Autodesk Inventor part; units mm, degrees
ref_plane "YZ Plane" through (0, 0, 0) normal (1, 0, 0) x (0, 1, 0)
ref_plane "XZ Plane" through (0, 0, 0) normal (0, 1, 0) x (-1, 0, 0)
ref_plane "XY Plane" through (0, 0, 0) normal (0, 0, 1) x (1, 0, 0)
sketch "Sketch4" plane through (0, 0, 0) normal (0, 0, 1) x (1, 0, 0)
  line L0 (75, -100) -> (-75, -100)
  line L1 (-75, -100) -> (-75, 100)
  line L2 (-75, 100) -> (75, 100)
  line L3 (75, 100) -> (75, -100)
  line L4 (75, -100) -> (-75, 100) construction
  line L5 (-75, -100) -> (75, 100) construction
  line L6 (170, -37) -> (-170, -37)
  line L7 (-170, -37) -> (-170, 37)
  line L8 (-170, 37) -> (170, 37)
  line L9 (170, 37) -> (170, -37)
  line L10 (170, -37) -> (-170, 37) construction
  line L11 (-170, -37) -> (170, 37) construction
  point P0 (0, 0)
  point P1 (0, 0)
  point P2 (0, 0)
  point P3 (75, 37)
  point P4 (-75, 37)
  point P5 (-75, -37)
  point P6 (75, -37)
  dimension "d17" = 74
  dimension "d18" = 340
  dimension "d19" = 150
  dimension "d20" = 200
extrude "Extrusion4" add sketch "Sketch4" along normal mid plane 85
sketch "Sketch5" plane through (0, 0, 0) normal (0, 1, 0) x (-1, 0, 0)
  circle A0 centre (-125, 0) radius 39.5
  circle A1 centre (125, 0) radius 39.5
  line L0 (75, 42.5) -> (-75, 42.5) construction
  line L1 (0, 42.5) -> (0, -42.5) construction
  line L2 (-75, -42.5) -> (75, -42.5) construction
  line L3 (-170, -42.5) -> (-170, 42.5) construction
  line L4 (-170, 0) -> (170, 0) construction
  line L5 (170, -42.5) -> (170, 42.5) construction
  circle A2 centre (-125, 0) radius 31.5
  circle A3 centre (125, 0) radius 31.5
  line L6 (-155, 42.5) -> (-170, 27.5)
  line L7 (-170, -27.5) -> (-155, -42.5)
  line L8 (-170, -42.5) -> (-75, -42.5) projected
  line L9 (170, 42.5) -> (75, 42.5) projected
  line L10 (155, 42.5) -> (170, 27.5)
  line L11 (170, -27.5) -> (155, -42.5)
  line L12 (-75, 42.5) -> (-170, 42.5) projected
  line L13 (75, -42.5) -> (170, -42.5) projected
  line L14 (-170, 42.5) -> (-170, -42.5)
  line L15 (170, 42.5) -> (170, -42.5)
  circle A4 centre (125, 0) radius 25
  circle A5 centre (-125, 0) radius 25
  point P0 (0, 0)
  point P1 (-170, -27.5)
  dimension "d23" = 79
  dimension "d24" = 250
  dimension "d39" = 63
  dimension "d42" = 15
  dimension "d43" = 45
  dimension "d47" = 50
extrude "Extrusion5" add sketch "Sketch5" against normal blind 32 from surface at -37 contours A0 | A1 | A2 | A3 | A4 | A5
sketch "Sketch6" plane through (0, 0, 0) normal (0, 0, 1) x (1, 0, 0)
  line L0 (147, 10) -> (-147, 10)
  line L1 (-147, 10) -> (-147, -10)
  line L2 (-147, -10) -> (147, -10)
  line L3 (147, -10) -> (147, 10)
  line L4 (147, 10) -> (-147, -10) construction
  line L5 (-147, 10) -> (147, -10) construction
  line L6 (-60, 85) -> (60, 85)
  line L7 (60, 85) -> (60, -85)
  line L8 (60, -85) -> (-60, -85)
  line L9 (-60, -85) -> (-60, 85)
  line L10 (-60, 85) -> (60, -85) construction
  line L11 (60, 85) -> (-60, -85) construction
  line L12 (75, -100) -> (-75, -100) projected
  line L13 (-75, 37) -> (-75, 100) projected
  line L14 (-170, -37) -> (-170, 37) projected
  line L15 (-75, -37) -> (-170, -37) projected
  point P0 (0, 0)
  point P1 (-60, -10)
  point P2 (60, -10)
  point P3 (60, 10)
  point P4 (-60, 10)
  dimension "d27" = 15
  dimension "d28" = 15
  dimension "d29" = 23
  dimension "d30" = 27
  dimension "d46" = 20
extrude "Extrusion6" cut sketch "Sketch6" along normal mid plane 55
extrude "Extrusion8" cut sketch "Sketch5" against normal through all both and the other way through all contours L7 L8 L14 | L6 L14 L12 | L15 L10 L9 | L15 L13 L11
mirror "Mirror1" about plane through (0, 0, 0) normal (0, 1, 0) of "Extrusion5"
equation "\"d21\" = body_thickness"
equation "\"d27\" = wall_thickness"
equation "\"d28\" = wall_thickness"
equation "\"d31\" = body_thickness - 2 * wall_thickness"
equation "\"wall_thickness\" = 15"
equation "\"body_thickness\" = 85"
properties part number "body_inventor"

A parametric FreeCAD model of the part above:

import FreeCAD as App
import Part
import Sketcher

V = App.Vector
Q = App.Units.Quantity

doc = App.newDocument("Part")
body = doc.addObject("PartDesign::Body", "Body")

# Sketch on XY plane
sketch1 = body.newObject("Sketcher::SketchObject", "Sketch")
sketch1.AttachmentSupport = (doc.getObject("XY_Plane"), [""])
sketch1.MapMode = "FlatFace"
sketch1.addGeometry([
    Part.LineSegment(V(-75, -100, 0), V(75, -100, 0)),  # 0
    Part.LineSegment(V(75, -100, 0), V(75, -37, 0)),  # 1
    Part.LineSegment(V(75, -37, 0), V(170, -37, 0)),  # 2
    Part.LineSegment(V(170, -37, 0), V(170, 37, 0)),  # 3
    Part.LineSegment(V(170, 37, 0), V(75, 37, 0)),  # 4
    Part.LineSegment(V(75, 37, 0), V(75, 100, 0)),  # 5
    Part.LineSegment(V(75, 100, 0), V(-75, 100, 0)),  # 6
    Part.LineSegment(V(-75, 100, 0), V(-75, 37, 0)),  # 7
    Part.LineSegment(V(-75, 37, 0), V(-170, 37, 0)),  # 8
    Part.LineSegment(V(-170, 37, 0), V(-170, -37, 0)),  # 9
    Part.LineSegment(V(-170, -37, 0), V(-75, -37, 0)),  # 10
    Part.LineSegment(V(-75, -37, 0), V(-75, -100, 0)),  # 11
], False)
sketch1.addConstraint([
    Sketcher.Constraint("Coincident", 0, 2, 1, 1),
    Sketcher.Constraint("Coincident", 1, 2, 2, 1),
    Sketcher.Constraint("Coincident", 2, 2, 3, 1),
    Sketcher.Constraint("Coincident", 3, 2, 4, 1),
    Sketcher.Constraint("Coincident", 4, 2, 5, 1),
    Sketcher.Constraint("Coincident", 5, 2, 6, 1),
    Sketcher.Constraint("Coincident", 6, 2, 7, 1),
    Sketcher.Constraint("Coincident", 7, 2, 8, 1),
    Sketcher.Constraint("Coincident", 8, 2, 9, 1),
    Sketcher.Constraint("Coincident", 9, 2, 10, 1),
    Sketcher.Constraint("Coincident", 10, 2, 11, 1),
    Sketcher.Constraint("Coincident", 11, 2, 0, 1),
    Sketcher.Constraint("Horizontal", 0),
    Sketcher.Constraint("Vertical", 1),
    Sketcher.Constraint("Horizontal", 2),
    Sketcher.Constraint("Vertical", 3),
    Sketcher.Constraint("Horizontal", 4),
    Sketcher.Constraint("Vertical", 5),
    Sketcher.Constraint("Horizontal", 6),
    Sketcher.Constraint("Vertical", 7),
    Sketcher.Constraint("Horizontal", 8),
    Sketcher.Constraint("Vertical", 9),
    Sketcher.Constraint("Horizontal", 10),
    Sketcher.Constraint("Vertical", 11),
    Sketcher.Constraint("Symmetric", 0, 2, 6, 2, -1, 1),
    Sketcher.Constraint("Symmetric", 2, 2, 8, 2, -1, 1),
    Sketcher.Constraint("Symmetric", 4, 2, 10, 2, -1, 1),
    Sketcher.Constraint("Symmetric", 4, 2, 7, 2, -2),
    Sketcher.Constraint("DistanceX", 0, 1, 0, 2, Q("150 mm")),
    Sketcher.Constraint("DistanceY", 3, 1, 3, 2, Q("74 mm")),
    Sketcher.Constraint("DistanceY", 0, 2, 5, 2, Q("200 mm")),
    Sketcher.Constraint("DistanceX", 2, 1, 2, 2, Q("95 mm")),
])
pad1 = body.newObject("PartDesign::Pad", "Pad")
pad1.Profile = sketch1
pad1.Length = 85
pad1.Midplane = True

# Sketch on XZ plane
sketch2 = body.newObject("Sketcher::SketchObject", "Sketch001")
sketch2.AttachmentSupport = (doc.getObject("XZ_Plane"), [""])
sketch2.MapMode = "FlatFace"
sketch2.AttachmentOffset = App.Placement(V(0, 0, 37), App.Rotation())
sketch2.addGeometry([
    Part.Circle(V(125, 0, 0), V(0, 0, 1), 40),
    Part.Circle(V(-125, 0, 0), V(0, 0, 1), 40),
], False)
sketch2.addConstraint([
    Sketcher.Constraint("Equal", 0, 1),
    Sketcher.Constraint("Symmetric", 0, 3, 1, 3, -1, 1),
    Sketcher.Constraint("PointOnObject", 0, 3, -1),
    Sketcher.Constraint("Diameter", 0, Q("79 mm")),
    Sketcher.Constraint("DistanceX", 1, 3, 0, 3, Q("250 mm")),
])
pad2 = body.newObject("PartDesign::Pad", "Pad001")
pad2.Profile = sketch2
pad2.Length = 32

# Sketch on XY plane
sketch3 = body.newObject("Sketcher::SketchObject", "Sketch002")
sketch3.AttachmentSupport = (doc.getObject("XY_Plane"), [""])
sketch3.MapMode = "FlatFace"
sketch3.addGeometry([
    Part.LineSegment(V(147, -10, 0), V(147, 10, 0)),  # 0
    Part.LineSegment(V(147, 10, 0), V(60, 10, 0)),  # 1
    Part.LineSegment(V(60, 10, 0), V(60, 85, 0)),  # 2
    Part.LineSegment(V(60, 85, 0), V(-60, 85, 0)),  # 3
    Part.LineSegment(V(-60, 85, 0), V(-60, 10, 0)),  # 4
    Part.LineSegment(V(-60, 10, 0), V(-147, 10, 0)),  # 5
    Part.LineSegment(V(-147, 10, 0), V(-147, -10, 0)),  # 6
    Part.LineSegment(V(-147, -10, 0), V(-60, -10, 0)),  # 7
    Part.LineSegment(V(-60, -10, 0), V(-60, -85, 0)),  # 8
    Part.LineSegment(V(-60, -85, 0), V(60, -85, 0)),  # 9
    Part.LineSegment(V(60, -85, 0), V(60, -10, 0)),  # 10
    Part.LineSegment(V(60, -10, 0), V(147, -10, 0)),  # 11
], False)
sketch3.addConstraint([
    Sketcher.Constraint("Coincident", 0, 2, 1, 1),
    Sketcher.Constraint("Coincident", 1, 2, 2, 1),
    Sketcher.Constraint("Coincident", 2, 2, 3, 1),
    Sketcher.Constraint("Coincident", 3, 2, 4, 1),
    Sketcher.Constraint("Coincident", 4, 2, 5, 1),
    Sketcher.Constraint("Coincident", 5, 2, 6, 1),
    Sketcher.Constraint("Coincident", 6, 2, 7, 1),
    Sketcher.Constraint("Coincident", 7, 2, 8, 1),
    Sketcher.Constraint("Coincident", 8, 2, 9, 1),
    Sketcher.Constraint("Coincident", 9, 2, 10, 1),
    Sketcher.Constraint("Coincident", 10, 2, 11, 1),
    Sketcher.Constraint("Coincident", 11, 2, 0, 1),
    Sketcher.Constraint("Vertical", 0),
    Sketcher.Constraint("Horizontal", 1),
    Sketcher.Constraint("Vertical", 2),
    Sketcher.Constraint("Horizontal", 3),
    Sketcher.Constraint("Vertical", 4),
    Sketcher.Constraint("Horizontal", 5),
    Sketcher.Constraint("Vertical", 6),
    Sketcher.Constraint("Horizontal", 7),
    Sketcher.Constraint("Vertical", 8),
    Sketcher.Constraint("Horizontal", 9),
    Sketcher.Constraint("Vertical", 10),
    Sketcher.Constraint("Horizontal", 11),
    Sketcher.Constraint("Symmetric", 0, 2, 6, 2, -1, 1),
    Sketcher.Constraint("Symmetric", 2, 2, 8, 2, -1, 1),
    Sketcher.Constraint("Symmetric", 4, 2, 10, 2, -1, 1),
    Sketcher.Constraint("Symmetric", 1, 2, 4, 2, -2),
    Sketcher.Constraint("DistanceY", 0, 1, 0, 2, Q("20 mm")),
    Sketcher.Constraint("DistanceX", 1, 2, 1, 1, Q("87 mm")),
    Sketcher.Constraint("DistanceX", 3, 2, 3, 1, Q("120 mm")),
    Sketcher.Constraint("DistanceY", 2, 1, 2, 2, Q("75 mm")),
])
pocket1 = body.newObject("PartDesign::Pocket", "Pocket")
pocket1.Profile = sketch3
pocket1.Length = 55
pocket1.Midplane = True

# Sketch on XZ plane
sketch4 = body.newObject("Sketcher::SketchObject", "Sketch003")
sketch4.AttachmentSupport = (doc.getObject("XZ_Plane"), [""])
sketch4.MapMode = "FlatFace"
sketch4.addGeometry([
    Part.LineSegment(V(155, -42, 0), V(170, -28, 0)),  # 0
    Part.LineSegment(V(170, -28, 0), V(170, -42, 0)),  # 1
    Part.LineSegment(V(170, -42, 0), V(155, -42, 0)),  # 2
    Part.LineSegment(V(170, 28, 0), V(155, 42, 0)),  # 3
    Part.LineSegment(V(155, 42, 0), V(170, 42, 0)),  # 4
    Part.LineSegment(V(170, 42, 0), V(170, 28, 0)),  # 5
    Part.LineSegment(V(-170, 28, 0), V(-170, 42, 0)),  # 6
    Part.LineSegment(V(-170, 42, 0), V(-155, 42, 0)),  # 7
    Part.LineSegment(V(-155, 42, 0), V(-170, 28, 0)),  # 8
    Part.LineSegment(V(-170, -42, 0), V(-170, -28, 0)),  # 9
    Part.LineSegment(V(-170, -28, 0), V(-155, -42, 0)),  # 10
    Part.LineSegment(V(-155, -42, 0), V(-170, -42, 0)),  # 11
], False)
sketch4.addConstraint([
    Sketcher.Constraint("Coincident", 0, 2, 1, 1),
    Sketcher.Constraint("Coincident", 1, 2, 2, 1),
    Sketcher.Constraint("Coincident", 2, 2, 0, 1),
    Sketcher.Constraint("Coincident", 3, 2, 4, 1),
    Sketcher.Constraint("Coincident", 4, 2, 5, 1),
    Sketcher.Constraint("Coincident", 5, 2, 3, 1),
    Sketcher.Constraint("Coincident", 6, 2, 7, 1),
    Sketcher.Constraint("Coincident", 7, 2, 8, 1),
    Sketcher.Constraint("Coincident", 8, 2, 6, 1),
    Sketcher.Constraint("Coincident", 9, 2, 10, 1),
    Sketcher.Constraint("Coincident", 10, 2, 11, 1),
    Sketcher.Constraint("Coincident", 11, 2, 9, 1),
    Sketcher.Constraint("Vertical", 1),
    Sketcher.Constraint("Horizontal", 2),
    Sketcher.Constraint("Horizontal", 4),
    Sketcher.Constraint("Vertical", 5),
    Sketcher.Constraint("Vertical", 6),
    Sketcher.Constraint("Horizontal", 7),
    Sketcher.Constraint("Vertical", 9),
    Sketcher.Constraint("Horizontal", 11),
    Sketcher.Constraint("Symmetric", 1, 2, 6, 2, -1, 1),
    Sketcher.Constraint("Symmetric", 5, 2, 9, 2, -1, 1),
    Sketcher.Constraint("Symmetric", 3, 2, 10, 2, -1, 1),
    Sketcher.Constraint("Symmetric", 4, 2, 6, 2, -2),
    Sketcher.Constraint("Perpendicular", 0, 3),
    Sketcher.Constraint("Perpendicular", 3, 8),
    Sketcher.Constraint("Horizontal", 5, 2, 8, 2),
    Sketcher.Constraint("Horizontal", 0, 2, 9, 2),
    Sketcher.Constraint("Vertical", 2, 2, 3, 2),
    Sketcher.Constraint("DistanceX", 2, 2, 2, 1, Q("15 mm")),
    Sketcher.Constraint("DistanceX", -1, 1, 0, 2, Q("170 mm")),
    Sketcher.Constraint("DistanceY", 0, 2, 3, 2, Q("70 mm")),
])
pocket2 = body.newObject("PartDesign::Pocket", "Pocket001")
pocket2.Profile = sketch4
pocket2.Type = "ThroughAll"
pocket2.Midplane = True
doc.recompute()

mirrored = body.newObject("PartDesign::Mirrored", "Mirrored")
mirrored.Originals = [pad2]
mirrored.MirrorPlane = (doc.getObject("XZ_Plane"), [""])
body.Tip = mirrored

doc.recompute()
